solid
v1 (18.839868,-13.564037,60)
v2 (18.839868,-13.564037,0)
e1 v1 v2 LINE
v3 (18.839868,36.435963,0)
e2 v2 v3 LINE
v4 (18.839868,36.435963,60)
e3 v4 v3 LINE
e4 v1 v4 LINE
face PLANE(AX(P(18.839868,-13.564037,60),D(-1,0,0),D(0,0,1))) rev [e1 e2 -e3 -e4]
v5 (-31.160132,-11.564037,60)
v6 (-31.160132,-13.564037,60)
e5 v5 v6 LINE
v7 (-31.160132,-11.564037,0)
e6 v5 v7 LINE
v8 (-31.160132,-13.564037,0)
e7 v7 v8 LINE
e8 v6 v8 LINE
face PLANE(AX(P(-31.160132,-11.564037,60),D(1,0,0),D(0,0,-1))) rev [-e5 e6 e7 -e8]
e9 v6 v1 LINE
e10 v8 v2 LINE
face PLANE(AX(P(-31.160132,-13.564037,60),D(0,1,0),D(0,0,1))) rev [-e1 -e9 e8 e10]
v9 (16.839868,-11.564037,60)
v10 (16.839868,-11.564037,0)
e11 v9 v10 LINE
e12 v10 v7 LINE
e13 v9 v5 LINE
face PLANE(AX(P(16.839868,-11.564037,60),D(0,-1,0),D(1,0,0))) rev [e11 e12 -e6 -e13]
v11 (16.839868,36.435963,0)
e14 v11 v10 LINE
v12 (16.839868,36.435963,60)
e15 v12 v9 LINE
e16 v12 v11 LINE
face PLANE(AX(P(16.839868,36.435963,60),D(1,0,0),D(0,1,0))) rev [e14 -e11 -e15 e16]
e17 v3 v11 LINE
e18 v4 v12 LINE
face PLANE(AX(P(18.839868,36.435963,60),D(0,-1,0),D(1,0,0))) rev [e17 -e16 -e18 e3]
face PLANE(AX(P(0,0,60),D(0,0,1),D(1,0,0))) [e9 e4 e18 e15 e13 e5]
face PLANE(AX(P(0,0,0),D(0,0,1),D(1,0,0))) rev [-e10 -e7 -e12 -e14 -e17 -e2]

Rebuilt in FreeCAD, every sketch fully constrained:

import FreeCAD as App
import Part
import Sketcher

V = App.Vector
Q = App.Units.Quantity


def add_polygon(sketch, points):
    """Adds a closed chain of lines whose ends are joined by coincident constraints."""
    first, n = sketch.GeometryCount, len(points)
    for a, b in zip(points, points[1:] + points[:1]):
        sketch.addGeometry(Part.LineSegment(App.Vector(*a, 0), App.Vector(*b, 0)), False)
    for i in range(n):
        sketch.addConstraint(Sketcher.Constraint("Coincident", first + i, 2, first + (i + 1) % n, 1))

doc = App.newDocument("Part")
body = doc.addObject("PartDesign::Body", "Body")

# Sketch on XY plane
sketch1 = body.newObject("Sketcher::SketchObject", "Sketch")
sketch1.AttachmentSupport = (doc.getObject("XY_Plane"), [""])
sketch1.MapMode = "FlatFace"
add_polygon(sketch1, [(-31.2, -13.6), (18.8, -13.6), (18.8, 36.4), (16.8, 36.4), (16.8, -11.6), (-31.2, -11.6)])  # lines 0-5
sketch1.addConstraint(Sketcher.Constraint("Horizontal", 0))
sketch1.addConstraint(Sketcher.Constraint("Vertical", 1))
sketch1.addConstraint(Sketcher.Constraint("Horizontal", 2))
sketch1.addConstraint(Sketcher.Constraint("Vertical", 3))
sketch1.addConstraint(Sketcher.Constraint("Horizontal", 4))
sketch1.addConstraint(Sketcher.Constraint("Vertical", 5))
sketch1.addConstraint(Sketcher.Constraint("Equal", 0, 1))
sketch1.addConstraint(Sketcher.Constraint("Equal", 4, 3))
sketch1.addConstraint(Sketcher.Constraint("DistanceX", 0, 1, 0, 2, Q("50 mm")))
sketch1.addConstraint(Sketcher.Constraint("DistanceX", 2, 2, 2, 1, Q("2 mm")))
sketch1.addConstraint(Sketcher.Constraint("DistanceX", -1, 1, 0, 2, Q("18.839868 mm")))
sketch1.addConstraint(Sketcher.Constraint("DistanceY", 0, 2, -1, 1, Q("13.564037 mm")))
pad1 = body.newObject("PartDesign::Pad", "Pad")
pad1.Profile = sketch1
pad1.Length = 60

doc.recompute()
